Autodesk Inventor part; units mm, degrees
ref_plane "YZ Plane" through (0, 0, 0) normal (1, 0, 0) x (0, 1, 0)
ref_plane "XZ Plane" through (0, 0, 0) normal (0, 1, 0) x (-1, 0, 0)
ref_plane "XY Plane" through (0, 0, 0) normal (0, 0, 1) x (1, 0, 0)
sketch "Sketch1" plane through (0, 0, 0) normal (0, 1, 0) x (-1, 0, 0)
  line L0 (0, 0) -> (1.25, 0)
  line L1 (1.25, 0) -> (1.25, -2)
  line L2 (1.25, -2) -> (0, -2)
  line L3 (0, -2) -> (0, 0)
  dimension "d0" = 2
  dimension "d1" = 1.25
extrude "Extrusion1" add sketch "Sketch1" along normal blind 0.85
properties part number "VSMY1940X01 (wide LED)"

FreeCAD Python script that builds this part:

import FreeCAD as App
import Part
import Sketcher

V = App.Vector

doc = App.newDocument("Part")
params = doc.addObject("Spreadsheet::Sheet", "Params")
for row, (alias, value) in enumerate([
    ("sketch1_height", "2 mm"),
    ("sketch1_width", "1.25 mm"),
    ("pad1_length", "0.85 mm"),
], start=1):
    params.set(f"A{row}", alias)
    params.set(f"B{row}", "=" + value)
    params.setAlias(f"B{row}", alias)

body = doc.addObject("PartDesign::Body", "Body")

sketch1 = body.newObject("Sketcher::SketchObject", "Sketch")
sketch1.AttachmentSupport = (doc.getObject("XZ_Plane"), [""])
sketch1.MapMode = "FlatFace"
sketch1.addGeometry(Part.LineSegment(V(-1.25, 0, 0), V(0, 0, 0)), False)
sketch1.addGeometry(Part.LineSegment(V(0, 0, 0), V(0, -2, 0)), False)
sketch1.addGeometry(Part.LineSegment(V(0, -2, 0), V(-1.25, -2, 0)), False)
sketch1.addGeometry(Part.LineSegment(V(-1.25, -2, 0), V(-1.25, 0, 0)), False)
sketch1.addConstraint(Sketcher.Constraint("Coincident", 0, 2, 1, 1))
sketch1.addConstraint(Sketcher.Constraint("Coincident", 1, 2, 2, 1))
sketch1.addConstraint(Sketcher.Constraint("Coincident", 2, 2, 3, 1))
sketch1.addConstraint(Sketcher.Constraint("Coincident", 3, 2, 0, 1))
sketch1.addConstraint(Sketcher.Constraint("Horizontal", 0))
sketch1.addConstraint(Sketcher.Constraint("Vertical", 1))
sketch1.addConstraint(Sketcher.Constraint("Horizontal", 2))
sketch1.addConstraint(Sketcher.Constraint("Vertical", 3))
sketch1.addConstraint(Sketcher.Constraint("Coincident", 0, 2, -1, 1))
sketch1.addConstraint(Sketcher.Constraint("DistanceY", 1, 2, 1, 1, 2.0))
sketch1.addConstraint(Sketcher.Constraint("DistanceX", 0, 1, 0, 2, 1.25))
sketch1.setExpression("Constraints[9]", "Params.sketch1_height")
sketch1.setExpression("Constraints[10]", "Params.sketch1_width")
pad1 = body.newObject("PartDesign::Pad", "Pad")
pad1.Profile = sketch1
pad1.setExpression("Length", "Params.pad1_length")
pad1.Reversed = True

doc.recompute()
